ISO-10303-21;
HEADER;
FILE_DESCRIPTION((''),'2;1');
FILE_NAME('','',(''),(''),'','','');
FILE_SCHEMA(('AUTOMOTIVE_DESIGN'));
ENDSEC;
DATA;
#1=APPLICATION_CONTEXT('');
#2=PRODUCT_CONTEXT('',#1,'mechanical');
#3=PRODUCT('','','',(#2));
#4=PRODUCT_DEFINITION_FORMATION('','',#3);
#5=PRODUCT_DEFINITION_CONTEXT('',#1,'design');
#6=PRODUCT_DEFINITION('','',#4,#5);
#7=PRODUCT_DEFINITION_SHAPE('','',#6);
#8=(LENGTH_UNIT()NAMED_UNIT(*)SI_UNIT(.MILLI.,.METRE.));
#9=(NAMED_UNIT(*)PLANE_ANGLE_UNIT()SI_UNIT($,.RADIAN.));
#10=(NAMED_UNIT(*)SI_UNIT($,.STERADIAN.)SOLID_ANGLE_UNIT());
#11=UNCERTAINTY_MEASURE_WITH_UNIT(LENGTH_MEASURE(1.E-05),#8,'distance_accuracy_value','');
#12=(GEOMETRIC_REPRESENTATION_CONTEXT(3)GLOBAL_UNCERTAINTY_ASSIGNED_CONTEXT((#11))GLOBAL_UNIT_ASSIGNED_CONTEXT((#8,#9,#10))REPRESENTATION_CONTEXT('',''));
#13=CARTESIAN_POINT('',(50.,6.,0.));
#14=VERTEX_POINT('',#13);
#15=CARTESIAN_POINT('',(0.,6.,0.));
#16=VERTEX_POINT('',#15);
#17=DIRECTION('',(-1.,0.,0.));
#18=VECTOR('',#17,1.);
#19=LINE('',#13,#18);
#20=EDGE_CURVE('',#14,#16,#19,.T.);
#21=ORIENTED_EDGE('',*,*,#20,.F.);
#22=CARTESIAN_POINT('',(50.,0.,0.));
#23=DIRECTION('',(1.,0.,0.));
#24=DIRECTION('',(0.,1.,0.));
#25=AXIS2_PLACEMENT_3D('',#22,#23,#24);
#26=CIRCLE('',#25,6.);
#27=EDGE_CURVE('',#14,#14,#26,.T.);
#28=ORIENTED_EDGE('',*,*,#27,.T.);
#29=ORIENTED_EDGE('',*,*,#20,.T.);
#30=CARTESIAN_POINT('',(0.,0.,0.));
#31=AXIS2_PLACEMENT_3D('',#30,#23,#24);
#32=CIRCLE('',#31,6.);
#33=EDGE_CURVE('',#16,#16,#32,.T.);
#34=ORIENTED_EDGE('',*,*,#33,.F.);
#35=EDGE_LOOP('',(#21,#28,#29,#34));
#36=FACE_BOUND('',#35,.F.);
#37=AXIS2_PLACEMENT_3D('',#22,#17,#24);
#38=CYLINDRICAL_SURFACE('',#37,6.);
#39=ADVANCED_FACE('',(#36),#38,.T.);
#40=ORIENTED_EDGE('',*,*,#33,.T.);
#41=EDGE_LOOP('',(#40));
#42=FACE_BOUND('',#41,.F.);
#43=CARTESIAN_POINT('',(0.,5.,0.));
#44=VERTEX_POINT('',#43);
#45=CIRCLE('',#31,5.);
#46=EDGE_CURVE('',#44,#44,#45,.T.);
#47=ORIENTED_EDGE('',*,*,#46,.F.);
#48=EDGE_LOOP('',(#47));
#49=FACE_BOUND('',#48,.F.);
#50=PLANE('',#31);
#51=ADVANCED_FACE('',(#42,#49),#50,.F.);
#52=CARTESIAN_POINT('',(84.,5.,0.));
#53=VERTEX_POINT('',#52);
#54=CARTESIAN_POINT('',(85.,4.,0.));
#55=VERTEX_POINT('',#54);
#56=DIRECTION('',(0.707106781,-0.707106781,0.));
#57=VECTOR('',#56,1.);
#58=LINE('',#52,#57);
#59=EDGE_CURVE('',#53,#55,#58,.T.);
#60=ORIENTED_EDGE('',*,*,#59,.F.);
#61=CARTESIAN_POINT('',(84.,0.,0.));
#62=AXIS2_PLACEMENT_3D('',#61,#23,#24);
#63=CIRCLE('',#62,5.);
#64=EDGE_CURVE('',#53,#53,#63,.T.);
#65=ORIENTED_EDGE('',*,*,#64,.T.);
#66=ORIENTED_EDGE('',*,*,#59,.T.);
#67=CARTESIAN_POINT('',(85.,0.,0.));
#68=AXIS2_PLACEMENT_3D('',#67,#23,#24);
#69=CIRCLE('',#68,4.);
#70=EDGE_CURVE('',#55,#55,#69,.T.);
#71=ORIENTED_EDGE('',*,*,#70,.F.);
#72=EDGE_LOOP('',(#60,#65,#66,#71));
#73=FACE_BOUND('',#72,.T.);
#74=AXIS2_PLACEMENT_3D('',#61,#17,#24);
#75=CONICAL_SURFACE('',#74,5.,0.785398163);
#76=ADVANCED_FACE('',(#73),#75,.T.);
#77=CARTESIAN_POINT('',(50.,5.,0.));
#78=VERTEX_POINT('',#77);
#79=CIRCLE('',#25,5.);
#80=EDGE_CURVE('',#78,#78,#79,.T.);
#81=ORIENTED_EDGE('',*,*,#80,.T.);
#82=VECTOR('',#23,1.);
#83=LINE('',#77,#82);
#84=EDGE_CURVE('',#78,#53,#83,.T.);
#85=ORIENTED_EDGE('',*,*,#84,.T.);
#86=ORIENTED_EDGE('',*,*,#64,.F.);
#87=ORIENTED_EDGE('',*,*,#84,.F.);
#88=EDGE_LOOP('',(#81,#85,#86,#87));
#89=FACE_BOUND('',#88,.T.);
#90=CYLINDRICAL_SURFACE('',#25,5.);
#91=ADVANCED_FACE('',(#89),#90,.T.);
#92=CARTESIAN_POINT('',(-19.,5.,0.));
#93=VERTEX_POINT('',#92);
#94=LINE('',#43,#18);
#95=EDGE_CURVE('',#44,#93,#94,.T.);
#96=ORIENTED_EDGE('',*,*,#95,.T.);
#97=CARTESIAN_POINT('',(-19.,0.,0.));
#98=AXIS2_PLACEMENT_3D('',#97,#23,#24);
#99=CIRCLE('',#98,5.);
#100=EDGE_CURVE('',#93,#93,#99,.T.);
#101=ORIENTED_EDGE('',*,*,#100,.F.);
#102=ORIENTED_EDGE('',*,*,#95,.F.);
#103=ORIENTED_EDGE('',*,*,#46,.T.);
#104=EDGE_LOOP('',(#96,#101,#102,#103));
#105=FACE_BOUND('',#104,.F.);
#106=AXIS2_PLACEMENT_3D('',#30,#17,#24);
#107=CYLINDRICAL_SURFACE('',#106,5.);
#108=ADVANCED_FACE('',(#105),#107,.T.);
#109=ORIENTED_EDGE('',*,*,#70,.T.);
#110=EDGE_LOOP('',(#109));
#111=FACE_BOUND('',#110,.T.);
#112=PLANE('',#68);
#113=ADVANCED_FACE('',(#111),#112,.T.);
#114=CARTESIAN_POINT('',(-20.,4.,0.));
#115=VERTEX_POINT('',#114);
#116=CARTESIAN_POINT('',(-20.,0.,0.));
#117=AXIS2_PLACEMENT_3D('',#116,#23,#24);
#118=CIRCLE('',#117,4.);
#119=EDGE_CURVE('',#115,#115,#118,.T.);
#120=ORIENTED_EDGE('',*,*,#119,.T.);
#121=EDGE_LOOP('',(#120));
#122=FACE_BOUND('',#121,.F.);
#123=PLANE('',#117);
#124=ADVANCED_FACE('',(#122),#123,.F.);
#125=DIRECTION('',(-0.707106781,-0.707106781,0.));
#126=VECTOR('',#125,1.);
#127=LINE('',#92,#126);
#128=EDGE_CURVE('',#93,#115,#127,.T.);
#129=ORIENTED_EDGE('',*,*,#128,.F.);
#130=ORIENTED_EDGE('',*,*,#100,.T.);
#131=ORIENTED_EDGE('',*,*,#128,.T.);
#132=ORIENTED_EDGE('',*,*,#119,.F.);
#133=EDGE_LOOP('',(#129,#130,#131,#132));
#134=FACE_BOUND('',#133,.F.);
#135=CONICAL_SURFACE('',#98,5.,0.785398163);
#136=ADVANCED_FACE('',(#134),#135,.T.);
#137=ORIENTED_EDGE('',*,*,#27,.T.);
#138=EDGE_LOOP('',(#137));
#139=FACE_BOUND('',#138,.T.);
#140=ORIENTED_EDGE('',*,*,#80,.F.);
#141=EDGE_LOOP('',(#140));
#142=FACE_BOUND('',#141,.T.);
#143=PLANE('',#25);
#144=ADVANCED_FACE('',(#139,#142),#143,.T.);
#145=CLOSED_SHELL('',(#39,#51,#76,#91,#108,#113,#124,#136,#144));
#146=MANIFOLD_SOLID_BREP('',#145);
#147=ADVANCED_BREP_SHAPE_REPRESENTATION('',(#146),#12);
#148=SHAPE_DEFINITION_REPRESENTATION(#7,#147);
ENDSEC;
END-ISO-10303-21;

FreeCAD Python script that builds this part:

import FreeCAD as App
import Part
import Sketcher
from FreeCAD import Vector
Q = App.Units.Quantity


def edges_at(feature, points):
    """Names of the edges that pass closest to the given points."""
    edges = feature.Shape.Edges
    near = lambda p: min(range(len(edges)), key=lambda i: edges[i].distToShape(Part.Vertex(*p))[0])
    return sorted({f"Edge{near(p) + 1}" for p in points})


def add_polygon(sketch, points):
    """Adds a closed chain of lines whose ends are joined by coincident constraints."""
    first, n = sketch.GeometryCount, len(points)
    for a, b in zip(points, points[1:] + points[:1]):
        sketch.addGeometry(Part.LineSegment(App.Vector(*a, 0), App.Vector(*b, 0)), False)
    for i in range(n):
        sketch.addConstraint(Sketcher.Constraint("Coincident", first + i, 2, first + (i + 1) % n, 1))

doc = App.newDocument("Part")
body = doc.addObject("PartDesign::Body", "Body")

sketch1 = body.newObject("Sketcher::SketchObject", "Sketch")
sketch1.AttachmentSupport = (doc.getObject("XY_Plane"), [""])
sketch1.MapMode = "FlatFace"
add_polygon(sketch1, [(0, 6), (0, 5), (-20, 5), (-20, 0), (85, 0), (85, 5), (50, 5), (50, 6)])
sketch1.addConstraint(Sketcher.Constraint("Vertical", 0))
sketch1.addConstraint(Sketcher.Constraint("Horizontal", 1))
sketch1.addConstraint(Sketcher.Constraint("Vertical", 2))
sketch1.addConstraint(Sketcher.Constraint("Horizontal", 3))
sketch1.addConstraint(Sketcher.Constraint("Vertical", 4))
sketch1.addConstraint(Sketcher.Constraint("Horizontal", 5))
sketch1.addConstraint(Sketcher.Constraint("Vertical", 6))
sketch1.addConstraint(Sketcher.Constraint("Horizontal", 7))
sketch1.addConstraint(Sketcher.Constraint("PointOnObject", 0, 2, -2))
sketch1.addConstraint(Sketcher.Constraint("PointOnObject", 2, 2, -1))
sketch1.addConstraint(Sketcher.Constraint("Horizontal", 1, 2, 4, 2))
sketch1.addConstraint(Sketcher.Constraint("DistanceX", 1, 2, 1, 1, Q("20 mm")))
sketch1.addConstraint(Sketcher.Constraint("DistanceX", 5, 2, 5, 1, Q("35 mm")))
sketch1.addConstraint(Sketcher.Constraint("DistanceX", 7, 2, 7, 1, Q("50 mm")))
sketch1.addConstraint(Sketcher.Constraint("DistanceY", 0, 2, 0, 1, Q("1 mm")))
sketch1.addConstraint(Sketcher.Constraint("DistanceY", 2, 2, 2, 1, Q("5 mm")))
revolution = body.newObject("PartDesign::Revolution", "Revolution")
revolution.Profile = sketch1
revolution.ReferenceAxis = (sketch1, ["H_Axis"])
revolution.Angle = 360
doc.recompute()

chamfer = body.newObject("PartDesign::Chamfer", "Chamfer")
chamfer.Base = (revolution, edges_at(revolution, [(-20, -5, 0), (85, -5, 0)]))
chamfer.Size = 1

doc.recompute()
